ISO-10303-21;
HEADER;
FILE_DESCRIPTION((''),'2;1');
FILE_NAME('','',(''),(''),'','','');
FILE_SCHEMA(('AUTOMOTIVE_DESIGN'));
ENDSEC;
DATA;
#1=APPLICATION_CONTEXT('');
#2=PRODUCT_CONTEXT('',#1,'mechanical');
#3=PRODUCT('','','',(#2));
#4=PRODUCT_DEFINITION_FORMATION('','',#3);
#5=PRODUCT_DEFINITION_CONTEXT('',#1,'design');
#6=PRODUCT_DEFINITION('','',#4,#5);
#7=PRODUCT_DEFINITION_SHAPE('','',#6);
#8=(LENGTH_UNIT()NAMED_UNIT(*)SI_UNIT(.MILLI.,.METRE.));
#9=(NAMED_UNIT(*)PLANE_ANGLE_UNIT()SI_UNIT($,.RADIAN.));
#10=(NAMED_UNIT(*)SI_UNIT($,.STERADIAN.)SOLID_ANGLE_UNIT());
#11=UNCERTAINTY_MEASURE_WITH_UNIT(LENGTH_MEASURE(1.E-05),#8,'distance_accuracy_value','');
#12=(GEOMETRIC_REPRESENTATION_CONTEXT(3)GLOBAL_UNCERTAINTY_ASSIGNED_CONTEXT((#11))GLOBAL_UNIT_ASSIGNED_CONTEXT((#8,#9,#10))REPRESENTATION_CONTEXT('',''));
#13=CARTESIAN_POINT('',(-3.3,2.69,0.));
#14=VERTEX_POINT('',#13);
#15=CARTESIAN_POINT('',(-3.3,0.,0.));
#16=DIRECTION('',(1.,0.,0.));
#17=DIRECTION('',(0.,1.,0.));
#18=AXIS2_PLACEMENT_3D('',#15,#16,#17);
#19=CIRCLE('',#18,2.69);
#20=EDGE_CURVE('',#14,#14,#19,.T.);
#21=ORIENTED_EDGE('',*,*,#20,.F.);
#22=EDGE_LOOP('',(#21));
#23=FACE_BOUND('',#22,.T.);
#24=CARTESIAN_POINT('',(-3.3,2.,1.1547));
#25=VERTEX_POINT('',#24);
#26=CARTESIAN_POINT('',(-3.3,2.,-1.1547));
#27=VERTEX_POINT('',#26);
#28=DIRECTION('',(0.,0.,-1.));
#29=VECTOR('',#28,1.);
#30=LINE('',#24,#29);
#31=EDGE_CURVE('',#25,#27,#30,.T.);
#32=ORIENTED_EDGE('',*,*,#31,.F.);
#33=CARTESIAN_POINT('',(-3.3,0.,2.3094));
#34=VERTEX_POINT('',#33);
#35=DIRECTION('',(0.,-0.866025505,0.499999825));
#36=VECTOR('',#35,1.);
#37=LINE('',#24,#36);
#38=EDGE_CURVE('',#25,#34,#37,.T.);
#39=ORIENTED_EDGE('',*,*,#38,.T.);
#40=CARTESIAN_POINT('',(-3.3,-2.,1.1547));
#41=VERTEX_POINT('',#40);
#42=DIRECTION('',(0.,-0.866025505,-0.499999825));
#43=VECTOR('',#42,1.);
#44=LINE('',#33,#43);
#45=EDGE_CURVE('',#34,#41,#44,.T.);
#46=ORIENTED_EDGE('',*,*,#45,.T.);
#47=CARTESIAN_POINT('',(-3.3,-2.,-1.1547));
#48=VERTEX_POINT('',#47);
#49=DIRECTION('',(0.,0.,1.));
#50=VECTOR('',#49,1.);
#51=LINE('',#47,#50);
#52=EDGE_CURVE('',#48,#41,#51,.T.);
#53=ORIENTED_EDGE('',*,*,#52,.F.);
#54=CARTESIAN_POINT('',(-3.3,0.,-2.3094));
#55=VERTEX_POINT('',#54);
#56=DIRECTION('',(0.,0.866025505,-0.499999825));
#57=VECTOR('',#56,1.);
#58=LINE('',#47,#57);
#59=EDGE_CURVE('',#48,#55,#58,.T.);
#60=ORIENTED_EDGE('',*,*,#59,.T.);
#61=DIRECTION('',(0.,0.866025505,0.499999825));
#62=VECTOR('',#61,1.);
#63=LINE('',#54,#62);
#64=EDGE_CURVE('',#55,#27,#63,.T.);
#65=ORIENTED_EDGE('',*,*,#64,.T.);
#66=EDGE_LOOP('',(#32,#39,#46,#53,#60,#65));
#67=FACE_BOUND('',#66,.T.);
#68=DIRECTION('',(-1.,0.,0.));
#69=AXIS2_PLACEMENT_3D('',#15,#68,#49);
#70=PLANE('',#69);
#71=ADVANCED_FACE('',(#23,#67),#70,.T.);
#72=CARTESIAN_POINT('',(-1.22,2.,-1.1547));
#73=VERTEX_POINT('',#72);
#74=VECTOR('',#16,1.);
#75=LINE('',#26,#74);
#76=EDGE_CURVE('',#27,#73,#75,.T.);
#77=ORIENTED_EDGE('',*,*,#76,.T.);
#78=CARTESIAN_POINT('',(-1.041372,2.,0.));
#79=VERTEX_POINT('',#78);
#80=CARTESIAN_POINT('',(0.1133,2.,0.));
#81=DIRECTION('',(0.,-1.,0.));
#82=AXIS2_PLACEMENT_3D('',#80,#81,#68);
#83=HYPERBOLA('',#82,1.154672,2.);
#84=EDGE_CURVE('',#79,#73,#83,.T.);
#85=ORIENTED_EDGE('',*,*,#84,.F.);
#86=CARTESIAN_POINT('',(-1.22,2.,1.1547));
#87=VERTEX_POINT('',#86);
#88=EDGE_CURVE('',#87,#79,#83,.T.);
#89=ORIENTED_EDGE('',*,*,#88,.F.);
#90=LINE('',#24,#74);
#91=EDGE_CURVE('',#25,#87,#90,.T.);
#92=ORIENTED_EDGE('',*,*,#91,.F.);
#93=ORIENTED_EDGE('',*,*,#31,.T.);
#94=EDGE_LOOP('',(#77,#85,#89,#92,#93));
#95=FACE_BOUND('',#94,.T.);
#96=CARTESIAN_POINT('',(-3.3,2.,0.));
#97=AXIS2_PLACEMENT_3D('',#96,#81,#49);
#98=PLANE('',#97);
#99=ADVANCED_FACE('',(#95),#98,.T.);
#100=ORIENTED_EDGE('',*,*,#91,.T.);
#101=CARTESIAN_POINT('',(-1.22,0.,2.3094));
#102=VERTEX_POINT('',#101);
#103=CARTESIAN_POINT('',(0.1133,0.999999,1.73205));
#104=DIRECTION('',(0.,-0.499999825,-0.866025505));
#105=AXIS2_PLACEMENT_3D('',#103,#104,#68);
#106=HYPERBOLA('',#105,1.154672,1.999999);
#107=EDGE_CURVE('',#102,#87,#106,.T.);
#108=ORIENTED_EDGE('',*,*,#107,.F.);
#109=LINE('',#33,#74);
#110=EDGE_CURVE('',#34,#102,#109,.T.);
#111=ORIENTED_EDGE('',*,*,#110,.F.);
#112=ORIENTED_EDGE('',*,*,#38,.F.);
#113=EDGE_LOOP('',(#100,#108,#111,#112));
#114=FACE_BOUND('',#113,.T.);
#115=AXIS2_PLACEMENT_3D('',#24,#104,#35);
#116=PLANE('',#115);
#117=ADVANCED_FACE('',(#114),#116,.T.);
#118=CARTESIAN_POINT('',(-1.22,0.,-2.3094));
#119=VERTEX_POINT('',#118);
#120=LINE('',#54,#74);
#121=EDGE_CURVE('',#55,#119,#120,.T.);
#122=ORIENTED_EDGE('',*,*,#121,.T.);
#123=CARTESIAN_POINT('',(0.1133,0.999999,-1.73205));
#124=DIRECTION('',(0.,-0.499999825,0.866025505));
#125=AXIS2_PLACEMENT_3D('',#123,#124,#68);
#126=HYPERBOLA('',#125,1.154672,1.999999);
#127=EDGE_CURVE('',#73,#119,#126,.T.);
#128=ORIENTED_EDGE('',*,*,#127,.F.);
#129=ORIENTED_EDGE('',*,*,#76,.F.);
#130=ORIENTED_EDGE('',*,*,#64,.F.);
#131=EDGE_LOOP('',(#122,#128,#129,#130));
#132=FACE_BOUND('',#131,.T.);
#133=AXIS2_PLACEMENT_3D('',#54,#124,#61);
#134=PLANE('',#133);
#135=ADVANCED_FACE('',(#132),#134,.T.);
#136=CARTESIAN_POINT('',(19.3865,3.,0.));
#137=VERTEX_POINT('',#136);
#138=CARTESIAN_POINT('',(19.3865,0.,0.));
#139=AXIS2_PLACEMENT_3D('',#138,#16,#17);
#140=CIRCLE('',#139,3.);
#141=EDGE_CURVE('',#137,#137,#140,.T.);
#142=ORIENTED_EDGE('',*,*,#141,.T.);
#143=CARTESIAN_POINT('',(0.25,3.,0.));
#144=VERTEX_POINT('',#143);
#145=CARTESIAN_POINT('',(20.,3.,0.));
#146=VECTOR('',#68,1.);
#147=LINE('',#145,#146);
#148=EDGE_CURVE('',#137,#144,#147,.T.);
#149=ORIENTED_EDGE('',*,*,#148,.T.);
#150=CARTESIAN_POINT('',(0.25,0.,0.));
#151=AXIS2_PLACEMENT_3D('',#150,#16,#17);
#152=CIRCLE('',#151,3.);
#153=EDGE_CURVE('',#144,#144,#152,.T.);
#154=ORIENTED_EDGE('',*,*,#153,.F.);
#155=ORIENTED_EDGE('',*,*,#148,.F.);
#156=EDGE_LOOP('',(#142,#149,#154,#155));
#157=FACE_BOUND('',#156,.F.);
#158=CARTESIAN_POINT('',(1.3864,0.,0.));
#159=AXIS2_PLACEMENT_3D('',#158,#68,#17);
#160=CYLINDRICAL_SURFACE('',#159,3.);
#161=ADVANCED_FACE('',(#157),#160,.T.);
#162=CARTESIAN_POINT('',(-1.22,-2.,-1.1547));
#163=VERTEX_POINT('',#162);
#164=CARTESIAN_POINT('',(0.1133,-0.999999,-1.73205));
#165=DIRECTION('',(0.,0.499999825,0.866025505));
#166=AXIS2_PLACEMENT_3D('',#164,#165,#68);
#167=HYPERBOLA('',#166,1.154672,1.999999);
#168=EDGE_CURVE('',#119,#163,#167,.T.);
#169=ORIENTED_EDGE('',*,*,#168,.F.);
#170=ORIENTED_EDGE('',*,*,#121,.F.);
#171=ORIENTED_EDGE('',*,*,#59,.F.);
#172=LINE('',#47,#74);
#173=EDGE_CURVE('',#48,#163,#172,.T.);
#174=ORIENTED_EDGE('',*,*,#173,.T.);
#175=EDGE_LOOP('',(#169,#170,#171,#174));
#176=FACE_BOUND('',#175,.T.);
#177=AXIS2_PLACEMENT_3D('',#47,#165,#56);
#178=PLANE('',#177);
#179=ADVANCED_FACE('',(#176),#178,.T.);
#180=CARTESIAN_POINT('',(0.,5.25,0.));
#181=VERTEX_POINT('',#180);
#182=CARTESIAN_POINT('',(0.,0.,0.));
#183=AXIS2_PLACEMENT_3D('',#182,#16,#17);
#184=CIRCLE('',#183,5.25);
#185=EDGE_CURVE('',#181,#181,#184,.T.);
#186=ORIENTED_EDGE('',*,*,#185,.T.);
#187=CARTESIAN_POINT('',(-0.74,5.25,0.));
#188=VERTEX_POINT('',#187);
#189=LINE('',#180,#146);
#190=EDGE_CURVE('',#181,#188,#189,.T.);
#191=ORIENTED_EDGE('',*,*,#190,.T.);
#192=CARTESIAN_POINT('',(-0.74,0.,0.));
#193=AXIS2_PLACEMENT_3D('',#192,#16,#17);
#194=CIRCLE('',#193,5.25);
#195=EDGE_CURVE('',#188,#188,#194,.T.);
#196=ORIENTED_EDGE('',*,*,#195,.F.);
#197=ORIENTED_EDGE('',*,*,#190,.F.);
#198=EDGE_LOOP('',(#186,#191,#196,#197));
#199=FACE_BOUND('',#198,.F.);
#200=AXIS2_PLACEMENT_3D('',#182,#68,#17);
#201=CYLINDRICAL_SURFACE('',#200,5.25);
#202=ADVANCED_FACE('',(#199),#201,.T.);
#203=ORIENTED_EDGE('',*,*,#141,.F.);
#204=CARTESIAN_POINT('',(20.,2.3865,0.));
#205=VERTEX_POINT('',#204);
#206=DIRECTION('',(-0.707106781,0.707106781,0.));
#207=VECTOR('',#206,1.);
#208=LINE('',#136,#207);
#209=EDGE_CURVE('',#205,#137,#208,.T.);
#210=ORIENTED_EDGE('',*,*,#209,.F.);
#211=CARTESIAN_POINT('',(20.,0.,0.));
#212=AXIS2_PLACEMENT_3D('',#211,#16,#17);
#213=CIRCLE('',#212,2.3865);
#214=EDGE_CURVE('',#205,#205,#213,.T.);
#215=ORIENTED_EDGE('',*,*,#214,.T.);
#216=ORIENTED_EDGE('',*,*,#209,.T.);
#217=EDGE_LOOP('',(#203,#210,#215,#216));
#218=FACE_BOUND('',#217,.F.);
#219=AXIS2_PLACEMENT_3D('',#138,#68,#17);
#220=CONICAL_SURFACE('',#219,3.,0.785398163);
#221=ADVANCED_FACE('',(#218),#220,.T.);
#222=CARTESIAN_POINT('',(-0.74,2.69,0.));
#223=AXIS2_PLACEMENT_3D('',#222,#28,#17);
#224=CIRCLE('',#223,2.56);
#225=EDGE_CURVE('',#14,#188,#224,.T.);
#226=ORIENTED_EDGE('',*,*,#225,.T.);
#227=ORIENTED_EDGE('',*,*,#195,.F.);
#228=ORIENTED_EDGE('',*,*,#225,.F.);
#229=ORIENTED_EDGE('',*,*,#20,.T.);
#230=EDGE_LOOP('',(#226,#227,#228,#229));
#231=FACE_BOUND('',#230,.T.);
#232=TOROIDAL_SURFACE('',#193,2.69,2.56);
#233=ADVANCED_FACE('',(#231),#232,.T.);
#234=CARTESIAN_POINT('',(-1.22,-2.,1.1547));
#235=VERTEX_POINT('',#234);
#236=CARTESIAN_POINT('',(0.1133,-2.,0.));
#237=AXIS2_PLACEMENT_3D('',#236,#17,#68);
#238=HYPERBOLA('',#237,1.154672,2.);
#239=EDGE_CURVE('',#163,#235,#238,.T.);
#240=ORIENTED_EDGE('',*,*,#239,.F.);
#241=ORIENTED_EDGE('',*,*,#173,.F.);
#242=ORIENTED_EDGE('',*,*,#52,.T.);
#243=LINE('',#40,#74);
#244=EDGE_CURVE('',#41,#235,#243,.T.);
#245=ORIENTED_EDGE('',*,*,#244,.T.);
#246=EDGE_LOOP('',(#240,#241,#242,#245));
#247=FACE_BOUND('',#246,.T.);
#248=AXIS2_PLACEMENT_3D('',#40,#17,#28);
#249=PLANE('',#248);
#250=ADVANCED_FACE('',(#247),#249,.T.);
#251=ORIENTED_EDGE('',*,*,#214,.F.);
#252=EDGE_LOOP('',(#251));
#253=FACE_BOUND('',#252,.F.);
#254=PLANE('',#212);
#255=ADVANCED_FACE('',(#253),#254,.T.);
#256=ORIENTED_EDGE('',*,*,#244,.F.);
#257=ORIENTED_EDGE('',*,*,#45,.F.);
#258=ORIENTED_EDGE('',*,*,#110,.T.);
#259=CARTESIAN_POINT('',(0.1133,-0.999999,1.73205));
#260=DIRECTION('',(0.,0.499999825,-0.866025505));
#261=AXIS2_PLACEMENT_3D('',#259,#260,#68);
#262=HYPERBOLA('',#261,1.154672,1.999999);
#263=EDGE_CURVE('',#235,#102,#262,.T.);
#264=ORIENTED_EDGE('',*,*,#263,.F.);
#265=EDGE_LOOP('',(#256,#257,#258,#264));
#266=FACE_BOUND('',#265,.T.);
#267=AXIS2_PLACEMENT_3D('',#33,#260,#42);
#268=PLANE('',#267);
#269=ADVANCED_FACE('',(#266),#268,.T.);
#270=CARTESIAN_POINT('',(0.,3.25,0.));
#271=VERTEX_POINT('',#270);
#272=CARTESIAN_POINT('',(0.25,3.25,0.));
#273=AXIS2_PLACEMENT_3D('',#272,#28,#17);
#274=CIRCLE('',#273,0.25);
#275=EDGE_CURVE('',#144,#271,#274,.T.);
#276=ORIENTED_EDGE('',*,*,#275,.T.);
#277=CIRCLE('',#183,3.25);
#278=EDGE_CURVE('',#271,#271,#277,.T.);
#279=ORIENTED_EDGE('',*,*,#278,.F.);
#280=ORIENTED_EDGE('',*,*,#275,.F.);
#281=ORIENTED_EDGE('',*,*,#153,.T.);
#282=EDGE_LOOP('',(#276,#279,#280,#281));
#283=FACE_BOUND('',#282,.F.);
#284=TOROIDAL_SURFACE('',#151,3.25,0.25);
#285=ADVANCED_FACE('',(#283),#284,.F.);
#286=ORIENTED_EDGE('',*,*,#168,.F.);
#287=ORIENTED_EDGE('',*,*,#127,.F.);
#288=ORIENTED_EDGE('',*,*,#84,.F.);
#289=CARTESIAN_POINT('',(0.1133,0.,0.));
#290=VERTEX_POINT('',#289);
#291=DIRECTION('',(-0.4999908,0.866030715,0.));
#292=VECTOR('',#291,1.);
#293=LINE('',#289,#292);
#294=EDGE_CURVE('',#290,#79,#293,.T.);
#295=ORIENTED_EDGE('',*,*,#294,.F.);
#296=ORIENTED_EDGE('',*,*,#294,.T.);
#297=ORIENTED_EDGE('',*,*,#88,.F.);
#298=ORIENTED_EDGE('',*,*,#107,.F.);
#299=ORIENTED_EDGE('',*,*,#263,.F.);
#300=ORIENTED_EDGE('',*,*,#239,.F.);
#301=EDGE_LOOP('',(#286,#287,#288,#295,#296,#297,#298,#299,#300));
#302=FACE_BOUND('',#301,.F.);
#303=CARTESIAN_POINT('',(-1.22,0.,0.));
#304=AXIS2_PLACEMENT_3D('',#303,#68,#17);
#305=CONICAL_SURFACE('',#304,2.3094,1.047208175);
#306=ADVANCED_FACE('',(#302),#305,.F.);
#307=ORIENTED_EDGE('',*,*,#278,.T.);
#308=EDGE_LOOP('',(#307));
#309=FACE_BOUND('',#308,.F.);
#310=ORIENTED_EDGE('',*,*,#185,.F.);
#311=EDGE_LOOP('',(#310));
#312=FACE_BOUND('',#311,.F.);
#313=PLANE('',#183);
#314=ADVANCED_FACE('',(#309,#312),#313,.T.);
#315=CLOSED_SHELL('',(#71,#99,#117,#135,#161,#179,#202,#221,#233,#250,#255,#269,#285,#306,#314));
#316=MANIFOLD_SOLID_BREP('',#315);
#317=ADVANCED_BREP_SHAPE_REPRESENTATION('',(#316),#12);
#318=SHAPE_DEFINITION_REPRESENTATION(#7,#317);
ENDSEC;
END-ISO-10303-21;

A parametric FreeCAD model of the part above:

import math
import FreeCAD as App
import Part
import Sketcher
Q = App.Units.Quantity


def edges_at(feature, points):
    """Names of the edges that pass closest to the given points."""
    edges = feature.Shape.Edges
    near = lambda p: min(range(len(edges)), key=lambda i: edges[i].distToShape(Part.Vertex(*p))[0])
    return sorted({f"Edge{near(p) + 1}" for p in points})

doc = App.newDocument("Part")
params = doc.addObject("Spreadsheet::Sheet", "Params")
for row, (alias, value) in enumerate([
    ("sketch1_width", "20 mm"),
    ("sketch1_width2", "3.3 mm"),
    ("sketch1_width3", "2.08 mm"),
    ("sketch1_height", "3 mm"),
    ("sketch1_height2", "2.25 mm"),
    ("revolution_angle", "360 deg"),
    ("pad1_length", "2.2586 mm"),
    ("fillet_radius", "2.56 mm"),
    ("chamfer_size", "0.6135 mm"),
    ("chamfer_size2", "0.6135 mm"),
    ("fillet2_radius", "0.25 mm"),
], start=1):
    params.set(f"A{row}", alias)
    params.set(f"B{row}", "=" + value)
    params.setAlias(f"B{row}", alias)

body = doc.addObject("PartDesign::Body", "Body")

# Sketch on XY plane
sketch1 = body.newObject("Sketcher::SketchObject", "Sketch")
sketch1.AttachmentSupport = (doc.getObject("XY_Plane"), [""])
sketch1.MapMode = "FlatFace"
sketch1.addGeometry([
    Part.LineSegment(App.Vector(0.1, 0, 0), App.Vector(20, 0, 0)),  # 0
    Part.LineSegment(App.Vector(20, 0, 0), App.Vector(20, 3, 0)),  # 1
    Part.LineSegment(App.Vector(20, 3, 0), App.Vector(0, 3, 0)),  # 2
    Part.LineSegment(App.Vector(0, 3, 0), App.Vector(0, 5.2, 0)),  # 3
    Part.LineSegment(App.Vector(0, 5.2, 0), App.Vector(-3.3, 5.2, 0)),  # 4
    Part.LineSegment(App.Vector(-3.3, 5.2, 0), App.Vector(-3.3, 2.3, 0)),  # 5
    Part.LineSegment(App.Vector(-3.3, 2.3, 0), App.Vector(-1.2, 2.3, 0)),  # 6
    Part.LineSegment(App.Vector(-1.2, 2.3, 0), App.Vector(0.1, 0, 0)),  # 7
], False)
sketch1.addConstraint([
    Sketcher.Constraint("Coincident", 0, 2, 1, 1),
    Sketcher.Constraint("Coincident", 1, 2, 2, 1),
    Sketcher.Constraint("Coincident", 2, 2, 3, 1),
    Sketcher.Constraint("Coincident", 3, 2, 4, 1),
    Sketcher.Constraint("Coincident", 4, 2, 5, 1),
    Sketcher.Constraint("Coincident", 5, 2, 6, 1),
    Sketcher.Constraint("Coincident", 6, 2, 7, 1),
    Sketcher.Constraint("Coincident", 7, 2, 0, 1),
    Sketcher.Constraint("Horizontal", 0),
    Sketcher.Constraint("Vertical", 1),
    Sketcher.Constraint("Horizontal", 2),
    Sketcher.Constraint("Vertical", 3),
    Sketcher.Constraint("Horizontal", 4),
    Sketcher.Constraint("Vertical", 5),
    Sketcher.Constraint("Horizontal", 6),
    Sketcher.Constraint("PointOnObject", 0, 2, -1),
    Sketcher.Constraint("PointOnObject", 2, 2, -2),
    Sketcher.Constraint("DistanceX", 2, 2, 2, 1, Q("20 mm")),
    Sketcher.Constraint("DistanceX", 4, 2, 4, 1, Q("3.3 mm")),
    Sketcher.Constraint("DistanceX", 6, 1, 6, 2, Q("2.08 mm")),
    Sketcher.Constraint("DistanceY", 1, 1, 1, 2, Q("3 mm")),
    Sketcher.Constraint("Angle", 7, Q("-60.0006 deg")),
    Sketcher.Constraint("DistanceY", 3, 1, 3, 2, Q("2.25 mm")),
    Sketcher.Constraint("DistanceX", 0, 1, 0, 2, Q("19.8867 mm")),
])
sketch1.setExpression("Constraints[17]", "Params.sketch1_width")
sketch1.setExpression("Constraints[18]", "Params.sketch1_width2")
sketch1.setExpression("Constraints[19]", "Params.sketch1_width3")
sketch1.setExpression("Constraints[20]", "Params.sketch1_height")
sketch1.setExpression("Constraints[22]", "Params.sketch1_height2")
revolution = body.newObject("PartDesign::Revolution", "Revolution")
revolution.Profile = sketch1
revolution.ReferenceAxis = (sketch1, ["H_Axis"])
revolution.setExpression("Angle", "Params.revolution_angle")

# Sketch on YZ plane
sketch2 = body.newObject("Sketcher::SketchObject", "Sketch001")
sketch2.AttachmentSupport = (doc.getObject("YZ_Plane"), [""])
sketch2.MapMode = "FlatFace"
sketch2.AttachmentOffset = App.Placement(App.Vector(0, 0, -3.3), App.Rotation())
sketch2.addGeometry([
    Part.LineSegment(App.Vector(2, 1.2, 0), App.Vector(0, 2.3, 0)),  # 0
    Part.ArcOfCircle(Part.Circle(App.Vector(0, 0, 0), App.Vector(0, 0, 1), 2.3), math.radians(30), math.radians(90)),  # 1
    Part.ArcOfCircle(Part.Circle(App.Vector(0, 0, 0), App.Vector(0, 0, 1), 2.3), math.radians(90), math.radians(150)),  # 2
    Part.LineSegment(App.Vector(0, 2.3, 0), App.Vector(-2, 1.2, 0)),  # 3
    Part.ArcOfCircle(Part.Circle(App.Vector(0, 0, 0), App.Vector(0, 0, 1), 2.3), math.radians(-30), math.radians(30)),  # 4
    Part.LineSegment(App.Vector(2, -1.2, 0), App.Vector(2, 1.2, 0)),  # 5
    Part.LineSegment(App.Vector(-2, 1.2, 0), App.Vector(-2, -1.2, 0)),  # 6
    Part.ArcOfCircle(Part.Circle(App.Vector(0, 0, 0), App.Vector(0, 0, 1), 2.3), math.radians(150), math.radians(210)),  # 7
    Part.LineSegment(App.Vector(-2, -1.2, 0), App.Vector(0, -2.3, 0)),  # 8
    Part.ArcOfCircle(Part.Circle(App.Vector(0, 0, 0), App.Vector(0, 0, 1), 2.3), math.radians(-150), math.radians(-90)),  # 9
    Part.ArcOfCircle(Part.Circle(App.Vector(0, 0, 0), App.Vector(0, 0, 1), 2.3), math.radians(-90), math.radians(-30)),  # 10
    Part.LineSegment(App.Vector(0, -2.3, 0), App.Vector(2, -1.2, 0)),  # 11
], False)
sketch2.addConstraint([
    Sketcher.Constraint("Coincident", 0, 1, 1, 1),
    Sketcher.Constraint("Coincident", 1, 2, 0, 2),
    Sketcher.Constraint("Coincident", 2, 1, 3, 1),
    Sketcher.Constraint("Coincident", 3, 2, 2, 2),
    Sketcher.Constraint("Coincident", 4, 1, 5, 1),
    Sketcher.Constraint("Coincident", 5, 2, 4, 2),
    Sketcher.Constraint("Coincident", 6, 1, 7, 1),
    Sketcher.Constraint("Coincident", 7, 2, 6, 2),
    Sketcher.Constraint("Coincident", 8, 1, 9, 1),
    Sketcher.Constraint("Coincident", 9, 2, 8, 2),
    Sketcher.Constraint("Coincident", 10, 1, 11, 1),
    Sketcher.Constraint("Coincident", 11, 2, 10, 2),
    Sketcher.Constraint("Vertical", 5),
    Sketcher.Constraint("Vertical", 6),
    Sketcher.Constraint("Coincident", 1, 3, -1, 1),
    Sketcher.Constraint("Coincident", 2, 3, -1, 1),
    Sketcher.Constraint("Coincident", 4, 3, -1, 1),
    Sketcher.Constraint("Coincident", 7, 3, -1, 1),
    Sketcher.Constraint("Coincident", 9, 3, -1, 1),
    Sketcher.Constraint("Coincident", 10, 3, -1, 1),
    Sketcher.Constraint("Coincident", 2, 1, 1, 2),
    Sketcher.Constraint("Coincident", 5, 2, 0, 1),
    Sketcher.Constraint("Coincident", 6, 1, 3, 2),
    Sketcher.Constraint("Coincident", 8, 1, 7, 2),
    Sketcher.Constraint("Coincident", 10, 1, 9, 2),
    Sketcher.Constraint("PointOnObject", 1, 2, -2),
    Sketcher.Constraint("PointOnObject", 9, 2, -2),
    Sketcher.Constraint("Parallel", 0, 8),
    Sketcher.Constraint("Parallel", 3, 11),
    Sketcher.Constraint("Angle", 0, Q("150 deg")),
    Sketcher.Constraint("DistanceX", -1, 1, 0, 1, Q("2 mm")),
])
pad1 = body.newObject("PartDesign::Pad", "Pad")
pad1.Profile = sketch2
pad1.setExpression("Length", "Params.pad1_length")
doc.recompute()

fillet = body.newObject("PartDesign::Fillet", "Fillet")
fillet.Base = (pad1, edges_at(pad1, [(-3.3, -5.25, 0)]))
fillet.setExpression("Radius", "Params.fillet_radius")
doc.recompute()

chamfer = body.newObject("PartDesign::Chamfer", "Chamfer")
chamfer.Base = (fillet, edges_at(fillet, [(20, -3, 0)]))
chamfer.ChamferType = "Two distances"
chamfer.setExpression("Size", "Params.chamfer_size")
chamfer.setExpression("Size2", "Params.chamfer_size2")
doc.recompute()

fillet2 = body.newObject("PartDesign::Fillet", "Fillet001")
fillet2.Base = (chamfer, edges_at(chamfer, [(0, -3, 0)]))
fillet2.setExpression("Radius", "Params.fillet2_radius")

doc.recompute()
